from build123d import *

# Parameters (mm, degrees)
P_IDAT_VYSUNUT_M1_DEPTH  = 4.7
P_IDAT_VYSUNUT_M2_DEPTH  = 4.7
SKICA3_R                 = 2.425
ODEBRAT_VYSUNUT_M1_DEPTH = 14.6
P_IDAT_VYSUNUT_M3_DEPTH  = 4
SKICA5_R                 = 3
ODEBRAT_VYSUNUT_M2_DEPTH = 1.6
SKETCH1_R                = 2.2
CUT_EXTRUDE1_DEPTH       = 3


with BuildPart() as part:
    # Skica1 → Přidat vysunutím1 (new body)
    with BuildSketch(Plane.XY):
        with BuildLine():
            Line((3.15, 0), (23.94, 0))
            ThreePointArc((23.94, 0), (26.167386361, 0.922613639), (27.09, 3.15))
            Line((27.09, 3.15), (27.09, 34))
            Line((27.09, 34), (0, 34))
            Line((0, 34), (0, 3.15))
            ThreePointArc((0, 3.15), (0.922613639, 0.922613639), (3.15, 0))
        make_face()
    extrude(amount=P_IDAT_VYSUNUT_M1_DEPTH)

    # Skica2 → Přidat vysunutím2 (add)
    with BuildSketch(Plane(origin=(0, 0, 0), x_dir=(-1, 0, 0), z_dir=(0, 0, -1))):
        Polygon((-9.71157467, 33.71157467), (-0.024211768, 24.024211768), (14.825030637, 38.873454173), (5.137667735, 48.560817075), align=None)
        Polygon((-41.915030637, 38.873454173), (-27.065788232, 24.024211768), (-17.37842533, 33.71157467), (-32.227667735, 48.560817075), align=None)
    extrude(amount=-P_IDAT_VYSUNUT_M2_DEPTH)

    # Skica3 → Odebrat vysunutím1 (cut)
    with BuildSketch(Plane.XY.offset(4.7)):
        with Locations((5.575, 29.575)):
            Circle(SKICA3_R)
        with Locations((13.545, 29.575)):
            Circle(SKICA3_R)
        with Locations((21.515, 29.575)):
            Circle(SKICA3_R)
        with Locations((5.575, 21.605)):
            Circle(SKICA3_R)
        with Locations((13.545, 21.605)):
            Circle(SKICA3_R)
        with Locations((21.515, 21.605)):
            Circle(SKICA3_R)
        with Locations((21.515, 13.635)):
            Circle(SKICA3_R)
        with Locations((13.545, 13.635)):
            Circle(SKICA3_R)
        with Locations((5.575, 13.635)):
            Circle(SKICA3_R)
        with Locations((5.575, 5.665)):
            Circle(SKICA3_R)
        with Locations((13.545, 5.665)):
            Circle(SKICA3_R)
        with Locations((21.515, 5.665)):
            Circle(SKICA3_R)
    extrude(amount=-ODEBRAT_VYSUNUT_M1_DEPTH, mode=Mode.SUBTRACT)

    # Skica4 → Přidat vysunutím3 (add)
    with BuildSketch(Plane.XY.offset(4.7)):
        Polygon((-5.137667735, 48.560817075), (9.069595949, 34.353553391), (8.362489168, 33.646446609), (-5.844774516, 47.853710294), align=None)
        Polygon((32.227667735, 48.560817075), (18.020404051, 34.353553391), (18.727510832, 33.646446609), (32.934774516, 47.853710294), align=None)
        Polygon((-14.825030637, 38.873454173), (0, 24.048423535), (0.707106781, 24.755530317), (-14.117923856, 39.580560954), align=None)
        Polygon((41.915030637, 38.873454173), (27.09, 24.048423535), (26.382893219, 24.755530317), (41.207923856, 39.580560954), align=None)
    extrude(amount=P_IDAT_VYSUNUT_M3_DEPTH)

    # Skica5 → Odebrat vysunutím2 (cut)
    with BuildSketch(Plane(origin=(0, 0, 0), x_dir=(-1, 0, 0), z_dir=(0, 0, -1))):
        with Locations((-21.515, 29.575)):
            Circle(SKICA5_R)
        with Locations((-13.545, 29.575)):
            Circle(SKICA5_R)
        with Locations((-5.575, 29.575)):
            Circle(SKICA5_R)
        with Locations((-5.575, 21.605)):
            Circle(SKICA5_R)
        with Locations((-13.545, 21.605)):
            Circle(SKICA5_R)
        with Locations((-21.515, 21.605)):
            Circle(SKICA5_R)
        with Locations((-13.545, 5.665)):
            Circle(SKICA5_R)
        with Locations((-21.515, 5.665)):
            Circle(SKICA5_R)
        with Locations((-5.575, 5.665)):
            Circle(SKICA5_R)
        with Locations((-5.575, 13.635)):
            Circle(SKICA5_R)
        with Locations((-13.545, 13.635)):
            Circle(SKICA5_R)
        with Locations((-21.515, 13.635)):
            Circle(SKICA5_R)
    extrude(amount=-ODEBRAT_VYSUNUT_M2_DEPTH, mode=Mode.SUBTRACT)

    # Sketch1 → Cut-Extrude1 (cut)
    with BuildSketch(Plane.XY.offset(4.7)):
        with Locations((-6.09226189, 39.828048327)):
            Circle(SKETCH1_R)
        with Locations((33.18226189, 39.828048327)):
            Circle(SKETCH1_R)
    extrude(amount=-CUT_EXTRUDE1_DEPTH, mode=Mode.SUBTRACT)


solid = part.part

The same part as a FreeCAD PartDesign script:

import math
import FreeCAD as App
import Part
import Sketcher

V = App.Vector

doc = App.newDocument("Part")
body = doc.addObject("PartDesign::Body", "Body")

# Sketch on XY plane
sketch1 = body.newObject("Sketcher::SketchObject", "Sketch")
sketch1.AttachmentSupport = (doc.getObject("XY_Plane"), [""])
sketch1.MapMode = "FlatFace"
sketch1.addGeometry(Part.LineSegment(V(3.1, 0, 0), V(23.9, 0, 0)), False)
sketch1.addGeometry(Part.ArcOfCircle(Part.Circle(V(23.9, 3.1, 0), V(0, 0, 1), 3.1), math.radians(-90), math.radians(0)), False)
sketch1.addGeometry(Part.LineSegment(V(27.1, 3.1, 0), V(27.1, 34, 0)), False)
sketch1.addGeometry(Part.LineSegment(V(27.1, 34, 0), V(0, 34, 0)), False)
sketch1.addGeometry(Part.LineSegment(V(0, 34, 0), V(0, 3.1, 0)), False)
sketch1.addGeometry(Part.ArcOfCircle(Part.Circle(V(3.1, 3.1, 0), V(0, 0, 1), 3.1), math.radians(180), math.radians(270)), False)
sketch1.addConstraint(Sketcher.Constraint("Tangent", 0, 2, 1, 1))
sketch1.addConstraint(Sketcher.Constraint("Tangent", 1, 2, 2, 1))
sketch1.addConstraint(Sketcher.Constraint("Coincident", 2, 2, 3, 1))
sketch1.addConstraint(Sketcher.Constraint("Coincident", 3, 2, 4, 1))
sketch1.addConstraint(Sketcher.Constraint("Tangent", 4, 2, 5, 1))
sketch1.addConstraint(Sketcher.Constraint("Tangent", 5, 2, 0, 1))
sketch1.addConstraint(Sketcher.Constraint("Horizontal", 0))
sketch1.addConstraint(Sketcher.Constraint("Vertical", 2))
sketch1.addConstraint(Sketcher.Constraint("Horizontal", 3))
sketch1.addConstraint(Sketcher.Constraint("Vertical", 4))
sketch1.addConstraint(Sketcher.Constraint("Equal", 1, 5))
sketch1.addConstraint(Sketcher.Constraint("PointOnObject", 0, 2, -1))
sketch1.addConstraint(Sketcher.Constraint("PointOnObject", 3, 2, -2))
sketch1.addConstraint(Sketcher.Constraint("Radius", 1, 3.15))
sketch1.addConstraint(Sketcher.Constraint("DistanceY", -1, 1, 2, 2, 34.0))
sketch1.addConstraint(Sketcher.Constraint("DistanceX", 0, 1, 0, 2, 20.79))
pad1 = body.newObject("PartDesign::Pad", "Pad")
pad1.Profile = sketch1
pad1.Length = 4.7

# Sketch on XY plane
sketch2 = body.newObject("Sketcher::SketchObject", "Sketch001")
sketch2.AttachmentSupport = (doc.getObject("XY_Plane"), [""])
sketch2.MapMode = "FlatFace"
sketch2.addGeometry(Part.LineSegment(V(10, 34, 0), V(0, 24, 0)), False)
sketch2.addGeometry(Part.LineSegment(V(0, 24, 0), V(-15, 39, 0)), False)
sketch2.addGeometry(Part.LineSegment(V(-15, 39, 0), V(-5, 49, 0)), False)
sketch2.addGeometry(Part.LineSegment(V(-5, 49, 0), V(10, 34, 0)), False)
sketch2.addGeometry(Part.LineSegment(V(42, 39, 0), V(27, 24, 0)), False)
sketch2.addGeometry(Part.LineSegment(V(27, 24, 0), V(17, 34, 0)), False)
sketch2.addGeometry(Part.LineSegment(V(17, 34, 0), V(32, 49, 0)), False)
sketch2.addGeometry(Part.LineSegment(V(32, 49, 0), V(42, 39, 0)), False)
sketch2.addConstraint(Sketcher.Constraint("Coincident", 0, 2, 1, 1))
sketch2.addConstraint(Sketcher.Constraint("Coincident", 1, 2, 2, 1))
sketch2.addConstraint(Sketcher.Constraint("Coincident", 2, 2, 3, 1))
sketch2.addConstraint(Sketcher.Constraint("Coincident", 3, 2, 0, 1))
sketch2.addConstraint(Sketcher.Constraint("Coincident", 4, 2, 5, 1))
sketch2.addConstraint(Sketcher.Constraint("Coincident", 5, 2, 6, 1))
sketch2.addConstraint(Sketcher.Constraint("Coincident", 6, 2, 7, 1))
sketch2.addConstraint(Sketcher.Constraint("Coincident", 7, 2, 4, 1))
sketch2.addConstraint(Sketcher.Constraint("Perpendicular", 0, 1))
sketch2.addConstraint(Sketcher.Constraint("Perpendicular", 1, 2))
sketch2.addConstraint(Sketcher.Constraint("Perpendicular", 2, 3))
sketch2.addConstraint(Sketcher.Constraint("Perpendicular", 3, 4))
sketch2.addConstraint(Sketcher.Constraint("Perpendicular", 4, 5))
sketch2.addConstraint(Sketcher.Constraint("Perpendicular", 5, 6))
sketch2.addConstraint(Sketcher.Constraint("Perpendicular", 6, 7))
sketch2.addConstraint(Sketcher.Constraint("Horizontal", 0, 2, 4, 2))
sketch2.addConstraint(Sketcher.Constraint("Horizontal", 3, 2, 5, 2))
sketch2.addConstraint(Sketcher.Constraint("Horizontal", 2, 2, 6, 2))
sketch2.addConstraint(Sketcher.Constraint("Equal", 3, 4))
sketch2.addConstraint(Sketcher.Constraint("Distance", 1, 21.0))
sketch2.addConstraint(Sketcher.Constraint("Distance", 0, 13.7))
sketch2.addConstraint(Sketcher.Constraint("DistanceX", -1, 1, 0, 2, 0.024212))
sketch2.addConstraint(Sketcher.Constraint("DistanceY", -1, 1, 0, 2, 24.024212))
sketch2.addConstraint(Sketcher.Constraint("DistanceX", -1, 1, 4, 2, 27.065788))
pad2 = body.newObject("PartDesign::Pad", "Pad001")
pad2.Profile = sketch2
pad2.Length = 4.7

# Sketch on XY plane
sketch3 = body.newObject("Sketcher::SketchObject", "Sketch002")
sketch3.AttachmentSupport = (doc.getObject("XY_Plane"), [""])
sketch3.MapMode = "FlatFace"
sketch3.AttachmentOffset = App.Placement(V(0, 0, 4.7), App.Rotation())
sketch3.addGeometry(Part.Circle(V(5.6, 29.6, 0), V(0, 0, 1), 2.4), False)
sketch3.addGeometry(Part.Circle(V(13.5, 29.6, 0), V(0, 0, 1), 2.4), False)
sketch3.addGeometry(Part.Circle(V(21.5, 29.6, 0), V(0, 0, 1), 2.4), False)
sketch3.addGeometry(Part.Circle(V(5.6, 21.6, 0), V(0, 0, 1), 2.4), False)
sketch3.addGeometry(Part.Circle(V(13.5, 21.6, 0), V(0, 0, 1), 2.4), False)
sketch3.addGeometry(Part.Circle(V(21.5, 21.6, 0), V(0, 0, 1), 2.4), False)
sketch3.addGeometry(Part.Circle(V(21.5, 13.6, 0), V(0, 0, 1), 2.4), False)
sketch3.addGeometry(Part.Circle(V(13.5, 13.6, 0), V(0, 0, 1), 2.4), False)
sketch3.addGeometry(Part.Circle(V(5.6, 13.6, 0), V(0, 0, 1), 2.4), False)
sketch3.addGeometry(Part.Circle(V(5.6, 5.7, 0), V(0, 0, 1), 2.4), False)
sketch3.addGeometry(Part.Circle(V(13.5, 5.7, 0), V(0, 0, 1), 2.4), False)
sketch3.addGeometry(Part.Circle(V(21.5, 5.7, 0), V(0, 0, 1), 2.4), False)
sketch3.addConstraint(Sketcher.Constraint("Equal", 0, 1))
sketch3.addConstraint(Sketcher.Constraint("Equal", 1, 2))
sketch3.addConstraint(Sketcher.Constraint("Equal", 2, 3))
sketch3.addConstraint(Sketcher.Constraint("Equal", 3, 4))
sketch3.addConstraint(Sketcher.Constraint("Equal", 4, 5))
sketch3.addConstraint(Sketcher.Constraint("Equal", 5, 6))
sketch3.addConstraint(Sketcher.Constraint("Equal", 6, 7))
sketch3.addConstraint(Sketcher.Constraint("Equal", 7, 8))
sketch3.addConstraint(Sketcher.Constraint("Equal", 8, 9))
sketch3.addConstraint(Sketcher.Constraint("Equal", 9, 10))
sketch3.addConstraint(Sketcher.Constraint("Equal", 10, 11))
sketch3.addConstraint(Sketcher.Constraint("Horizontal", 0, 3, 1, 3))
sketch3.addConstraint(Sketcher.Constraint("Horizontal", 1, 3, 2, 3))
sketch3.addConstraint(Sketcher.Constraint("Horizontal", 3, 3, 4, 3))
sketch3.addConstraint(Sketcher.Constraint("Horizontal", 4, 3, 5, 3))
sketch3.addConstraint(Sketcher.Constraint("Horizontal", 6, 3, 7, 3))
sketch3.addConstraint(Sketcher.Constraint("Horizontal", 7, 3, 8, 3))
sketch3.addConstraint(Sketcher.Constraint("Horizontal", 9, 3, 10, 3))
sketch3.addConstraint(Sketcher.Constraint("Horizontal", 10, 3, 11, 3))
sketch3.addConstraint(Sketcher.Constraint("Vertical", 0, 3, 3, 3))
sketch3.addConstraint(Sketcher.Constraint("Vertical", 1, 3, 4, 3))
sketch3.addConstraint(Sketcher.Constraint("Vertical", 2, 3, 5, 3))
sketch3.addConstraint(Sketcher.Constraint("Vertical", 5, 3, 6, 3))
sketch3.addConstraint(Sketcher.Constraint("Vertical", 4, 3, 7, 3))
sketch3.addConstraint(Sketcher.Constraint("Vertical", 3, 3, 8, 3))
sketch3.addConstraint(Sketcher.Constraint("Vertical", 8, 3, 9, 3))
sketch3.addConstraint(Sketcher.Constraint("Vertical", 7, 3, 10, 3))
sketch3.addConstraint(Sketcher.Constraint("Vertical", 6, 3, 11, 3))
sketch3.addConstraint(Sketcher.Constraint("Diameter", 0, 4.85))
sketch3.addConstraint(Sketcher.Constraint("DistanceX", 0, 3, 1, 3, 7.97))
sketch3.addConstraint(Sketcher.Constraint("DistanceX", 1, 3, 2, 3, 7.97))
sketch3.addConstraint(Sketcher.Constraint("DistanceY", 3, 3, 0, 3, 7.97))
sketch3.addConstraint(Sketcher.Constraint("DistanceY", 6, 3, 5, 3, 7.97))
sketch3.addConstraint(Sketcher.Constraint("DistanceY", 9, 3, 8, 3, 7.97))
sketch3.addConstraint(Sketcher.Constraint("DistanceX", -1, 1, 0, 3, 5.575))
sketch3.addConstraint(Sketcher.Constraint("DistanceY", -1, 1, 0, 3, 29.575))
pocket1 = body.newObject("PartDesign::Pocket", "Pocket")
pocket1.Profile = sketch3
pocket1.Length = 14.6

# Sketch on XY plane
sketch4 = body.newObject("Sketcher::SketchObject", "Sketch003")
sketch4.AttachmentSupport = (doc.getObject("XY_Plane"), [""])
sketch4.MapMode = "FlatFace"
sketch4.AttachmentOffset = App.Placement(V(0, 0, 4.7), App.Rotation())
sketch4.addGeometry(Part.LineSegment(V(9.1, 34.4, 0), V(-5.1, 48.6, 0)), False)
sketch4.addGeometry(Part.LineSegment(V(-5.1, 48.6, 0), V(-5.8, 47.9, 0)), False)
sketch4.addGeometry(Part.LineSegment(V(-5.8, 47.9, 0), V(8.4, 33.6, 0)), False)
sketch4.addGeometry(Part.LineSegment(V(8.4, 33.6, 0), V(9.1, 34.4, 0)), False)
sketch4.addGeometry(Part.LineSegment(V(32.2, 48.6, 0), V(18, 34.4, 0)), False)
sketch4.addGeometry(Part.LineSegment(V(18, 34.4, 0), V(18.7, 33.6, 0)), False)
sketch4.addGeometry(Part.LineSegment(V(18.7, 33.6, 0), V(32.9, 47.9, 0)), False)
sketch4.addGeometry(Part.LineSegment(V(32.9, 47.9, 0), V(32.2, 48.6, 0)), False)
sketch4.addGeometry(Part.LineSegment(V(-14.8, 38.9, 0), V(0, 24, 0)), False)
sketch4.addGeometry(Part.LineSegment(V(0, 24, 0), V(0.7, 24.8, 0)), False)
sketch4.addGeometry(Part.LineSegment(V(0.7, 24.8, 0), V(-14.1, 39.6, 0)), False)
sketch4.addGeometry(Part.LineSegment(V(-14.1, 39.6, 0), V(-14.8, 38.9, 0)), False)
sketch4.addGeometry(Part.LineSegment(V(27.1, 24, 0), V(41.9, 38.9, 0)), False)
sketch4.addGeometry(Part.LineSegment(V(41.9, 38.9, 0), V(41.2, 39.6, 0)), False)
sketch4.addGeometry(Part.LineSegment(V(41.2, 39.6, 0), V(26.4, 24.8, 0)), False)
sketch4.addGeometry(Part.LineSegment(V(26.4, 24.8, 0), V(27.1, 24, 0)), False)
sketch4.addConstraint(Sketcher.Constraint("Coincident", 0, 2, 1, 1))
sketch4.addConstraint(Sketcher.Constraint("Coincident", 1, 2, 2, 1))
sketch4.addConstraint(Sketcher.Constraint("Coincident", 2, 2, 3, 1))
sketch4.addConstraint(Sketcher.Constraint("Coincident", 3, 2, 0, 1))
sketch4.addConstraint(Sketcher.Constraint("Coincident", 4, 2, 5, 1))
sketch4.addConstraint(Sketcher.Constraint("Coincident", 5, 2, 6, 1))
sketch4.addConstraint(Sketcher.Constraint("Coincident", 6, 2, 7, 1))
sketch4.addConstraint(Sketcher.Constraint("Coincident", 7, 2, 4, 1))
sketch4.addConstraint(Sketcher.Constraint("Coincident", 8, 2, 9, 1))
sketch4.addConstraint(Sketcher.Constraint("Coincident", 9, 2, 10, 1))
sketch4.addConstraint(Sketcher.Constraint("Coincident", 10, 2, 11, 1))
sketch4.addConstraint(Sketcher.Constraint("Coincident", 11, 2, 8, 1))
sketch4.addConstraint(Sketcher.Constraint("Coincident", 12, 2, 13, 1))
sketch4.addConstraint(Sketcher.Constraint("Coincident", 13, 2, 14, 1))
sketch4.addConstraint(Sketcher.Constraint("Coincident", 14, 2, 15, 1))
sketch4.addConstraint(Sketcher.Constraint("Coincident", 15, 2, 12, 1))
sketch4.addConstraint(Sketcher.Constraint("PointOnObject", 8, 2, -2))
sketch4.addConstraint(Sketcher.Constraint("Perpendicular", 0, 1))
sketch4.addConstraint(Sketcher.Constraint("Perpendicular", 1, 2))
sketch4.addConstraint(Sketcher.Constraint("Perpendicular", 2, 3))
sketch4.addConstraint(Sketcher.Constraint("Parallel", 3, 4))
sketch4.addConstraint(Sketcher.Constraint("Perpendicular", 4, 5))
sketch4.addConstraint(Sketcher.Constraint("Perpendicular", 5, 6))
sketch4.addConstraint(Sketcher.Constraint("Perpendicular", 6, 7))
sketch4.addConstraint(Sketcher.Constraint("Parallel", 7, 8))
sketch4.addConstraint(Sketcher.Constraint("Perpendicular", 8, 9))
sketch4.addConstraint(Sketcher.Constraint("Perpendicular", 9, 10))
sketch4.addConstraint(Sketcher.Constraint("Perpendicular", 10, 11))
sketch4.addConstraint(Sketcher.Constraint("Parallel", 11, 12))
sketch4.addConstraint(Sketcher.Constraint("Perpendicular", 12, 13))
sketch4.addConstraint(Sketcher.Constraint("Perpendicular", 13, 14))
sketch4.addConstraint(Sketcher.Constraint("Perpendicular", 14, 15))
sketch4.addConstraint(Sketcher.Constraint("Horizontal", 3, 2, 4, 2))
sketch4.addConstraint(Sketcher.Constraint("Horizontal", 2, 2, 5, 2))
sketch4.addConstraint(Sketcher.Constraint("Horizontal", 1, 2, 6, 2))
sketch4.addConstraint(Sketcher.Constraint("Horizontal", 11, 2, 12, 2))
sketch4.addConstraint(Sketcher.Constraint("Horizontal", 10, 2, 13, 2))
sketch4.addConstraint(Sketcher.Constraint("Horizontal", 9, 2, 14, 2))
sketch4.addConstraint(Sketcher.Constraint("Equal", 2, 4))
sketch4.addConstraint(Sketcher.Constraint("Equal", 7, 9))
sketch4.addConstraint(Sketcher.Constraint("Distance", 1, 1.0))
sketch4.addConstraint(Sketcher.Constraint("DistanceX", -1, 1, 15, 2, 27.09))
sketch4.addConstraint(Sketcher.Constraint("DistanceY", 4, 2, 12, 2, 4.519901))
sketch4.addConstraint(Sketcher.Constraint("Distance", 8, 20.965759))
sketch4.addConstraint(Sketcher.Constraint("DistanceY", -1, 1, 1, 2, 47.85371))
sketch4.addConstraint(Sketcher.Constraint("DistanceX", -1, 1, 2, 2, 8.362489))
sketch4.addConstraint(Sketcher.Constraint("DistanceX", -1, 1, 5, 2, 18.727511))
sketch4.addConstraint(Sketcher.Constraint("DistanceY", -1, 1, 9, 2, 24.75553))
pad3 = body.newObject("PartDesign::Pad", "Pad002")
pad3.Profile = sketch4
pad3.Length = 4

# Sketch on XY plane
sketch5 = body.newObject("Sketcher::SketchObject", "Sketch004")
sketch5.AttachmentSupport = (doc.getObject("XY_Plane"), [""])
sketch5.MapMode = "FlatFace"
sketch5.addGeometry(Part.Circle(V(21.5, 29.6, 0), V(0, 0, 1), 3), False)
sketch5.addGeometry(Part.Circle(V(13.5, 29.6, 0), V(0, 0, 1), 3), False)
sketch5.addGeometry(Part.Circle(V(5.6, 29.6, 0), V(0, 0, 1), 3), False)
sketch5.addGeometry(Part.Circle(V(5.6, 21.6, 0), V(0, 0, 1), 3), False)
sketch5.addGeometry(Part.Circle(V(13.5, 21.6, 0), V(0, 0, 1), 3), False)
sketch5.addGeometry(Part.Circle(V(21.5, 21.6, 0), V(0, 0, 1), 3), False)
sketch5.addGeometry(Part.Circle(V(13.5, 5.7, 0), V(0, 0, 1), 3), False)
sketch5.addGeometry(Part.Circle(V(21.5, 5.7, 0), V(0, 0, 1), 3), False)
sketch5.addGeometry(Part.Circle(V(5.6, 5.7, 0), V(0, 0, 1), 3), False)
sketch5.addGeometry(Part.Circle(V(5.6, 13.6, 0), V(0, 0, 1), 3), False)
sketch5.addGeometry(Part.Circle(V(13.5, 13.6, 0), V(0, 0, 1), 3), False)
sketch5.addGeometry(Part.Circle(V(21.5, 13.6, 0), V(0, 0, 1), 3), False)
sketch5.addConstraint(Sketcher.Constraint("Equal", 0, 1))
sketch5.addConstraint(Sketcher.Constraint("Equal", 1, 2))
sketch5.addConstraint(Sketcher.Constraint("Equal", 2, 3))
sketch5.addConstraint(Sketcher.Constraint("Equal", 3, 4))
sketch5.addConstraint(Sketcher.Constraint("Equal", 4, 5))
sketch5.addConstraint(Sketcher.Constraint("Equal", 5, 6))
sketch5.addConstraint(Sketcher.Constraint("Equal", 6, 7))
sketch5.addConstraint(Sketcher.Constraint("Equal", 7, 8))
sketch5.addConstraint(Sketcher.Constraint("Equal", 8, 9))
sketch5.addConstraint(Sketcher.Constraint("Equal", 9, 10))
sketch5.addConstraint(Sketcher.Constraint("Equal", 10, 11))
sketch5.addConstraint(Sketcher.Constraint("Horizontal", 0, 3, 1, 3))
sketch5.addConstraint(Sketcher.Constraint("Horizontal", 1, 3, 2, 3))
sketch5.addConstraint(Sketcher.Constraint("Horizontal", 3, 3, 4, 3))
sketch5.addConstraint(Sketcher.Constraint("Horizontal", 4, 3, 5, 3))
sketch5.addConstraint(Sketcher.Constraint("Horizontal", 6, 3, 7, 3))
sketch5.addConstraint(Sketcher.Constraint("Horizontal", 7, 3, 8, 3))
sketch5.addConstraint(Sketcher.Constraint("Horizontal", 9, 3, 10, 3))
sketch5.addConstraint(Sketcher.Constraint("Horizontal", 10, 3, 11, 3))
sketch5.addConstraint(Sketcher.Constraint("Vertical", 2, 3, 3, 3))
sketch5.addConstraint(Sketcher.Constraint("Vertical", 1, 3, 4, 3))
sketch5.addConstraint(Sketcher.Constraint("Vertical", 0, 3, 5, 3))
sketch5.addConstraint(Sketcher.Constraint("Vertical", 4, 3, 6, 3))
sketch5.addConstraint(Sketcher.Constraint("Vertical", 5, 3, 7, 3))
sketch5.addConstraint(Sketcher.Constraint("Vertical", 3, 3, 8, 3))
sketch5.addConstraint(Sketcher.Constraint("Vertical", 8, 3, 9, 3))
sketch5.addConstraint(Sketcher.Constraint("Vertical", 6, 3, 10, 3))
sketch5.addConstraint(Sketcher.Constraint("Vertical", 7, 3, 11, 3))
sketch5.addConstraint(Sketcher.Constraint("Diameter", 0, 6.0))
sketch5.addConstraint(Sketcher.Constraint("DistanceX", 1, 3, 0, 3, 7.97))
sketch5.addConstraint(Sketcher.Constraint("DistanceX", 2, 3, 1, 3, 7.97))
sketch5.addConstraint(Sketcher.Constraint("DistanceY", 3, 3, 2, 3, 7.97))
sketch5.addConstraint(Sketcher.Constraint("DistanceY", 6, 3, 4, 3, 15.94))
sketch5.addConstraint(Sketcher.Constraint("DistanceY", 8, 3, 9, 3, 7.97))
sketch5.addConstraint(Sketcher.Constraint("DistanceX", -1, 1, 0, 3, 21.515))
sketch5.addConstraint(Sketcher.Constraint("DistanceY", -1, 1, 0, 3, 29.575))
pocket2 = body.newObject("PartDesign::Pocket", "Pocket001")
pocket2.Profile = sketch5
pocket2.Length = 1.6
pocket2.Reversed = True

# Sketch on XY plane
sketch6 = body.newObject("Sketcher::SketchObject", "Sketch005")
sketch6.AttachmentSupport = (doc.getObject("XY_Plane"), [""])
sketch6.MapMode = "FlatFace"
sketch6.AttachmentOffset = App.Placement(V(0, 0, 4.7), App.Rotation())
sketch6.addGeometry(Part.Circle(V(-6.1, 39.8, 0), V(0, 0, 1), 2.2), False)
sketch6.addGeometry(Part.Circle(V(33.2, 39.8, 0), V(0, 0, 1), 2.2), False)
sketch6.addConstraint(Sketcher.Constraint("Equal", 0, 1))
sketch6.addConstraint(Sketcher.Constraint("Horizontal", 0, 3, 1, 3))
sketch6.addConstraint(Sketcher.Constraint("Diameter", 0, 4.4))
sketch6.addConstraint(Sketcher.Constraint("DistanceX", 0, 3, -1, 1, 6.092262))
sketch6.addConstraint(Sketcher.Constraint("DistanceY", -1, 1, 0, 3, 39.828048))
sketch6.addConstraint(Sketcher.Constraint("DistanceX", -1, 1, 1, 3, 33.182262))
pocket3 = body.newObject("PartDesign::Pocket", "Pocket002")
pocket3.Profile = sketch6
pocket3.Length = 3

doc.recompute()
